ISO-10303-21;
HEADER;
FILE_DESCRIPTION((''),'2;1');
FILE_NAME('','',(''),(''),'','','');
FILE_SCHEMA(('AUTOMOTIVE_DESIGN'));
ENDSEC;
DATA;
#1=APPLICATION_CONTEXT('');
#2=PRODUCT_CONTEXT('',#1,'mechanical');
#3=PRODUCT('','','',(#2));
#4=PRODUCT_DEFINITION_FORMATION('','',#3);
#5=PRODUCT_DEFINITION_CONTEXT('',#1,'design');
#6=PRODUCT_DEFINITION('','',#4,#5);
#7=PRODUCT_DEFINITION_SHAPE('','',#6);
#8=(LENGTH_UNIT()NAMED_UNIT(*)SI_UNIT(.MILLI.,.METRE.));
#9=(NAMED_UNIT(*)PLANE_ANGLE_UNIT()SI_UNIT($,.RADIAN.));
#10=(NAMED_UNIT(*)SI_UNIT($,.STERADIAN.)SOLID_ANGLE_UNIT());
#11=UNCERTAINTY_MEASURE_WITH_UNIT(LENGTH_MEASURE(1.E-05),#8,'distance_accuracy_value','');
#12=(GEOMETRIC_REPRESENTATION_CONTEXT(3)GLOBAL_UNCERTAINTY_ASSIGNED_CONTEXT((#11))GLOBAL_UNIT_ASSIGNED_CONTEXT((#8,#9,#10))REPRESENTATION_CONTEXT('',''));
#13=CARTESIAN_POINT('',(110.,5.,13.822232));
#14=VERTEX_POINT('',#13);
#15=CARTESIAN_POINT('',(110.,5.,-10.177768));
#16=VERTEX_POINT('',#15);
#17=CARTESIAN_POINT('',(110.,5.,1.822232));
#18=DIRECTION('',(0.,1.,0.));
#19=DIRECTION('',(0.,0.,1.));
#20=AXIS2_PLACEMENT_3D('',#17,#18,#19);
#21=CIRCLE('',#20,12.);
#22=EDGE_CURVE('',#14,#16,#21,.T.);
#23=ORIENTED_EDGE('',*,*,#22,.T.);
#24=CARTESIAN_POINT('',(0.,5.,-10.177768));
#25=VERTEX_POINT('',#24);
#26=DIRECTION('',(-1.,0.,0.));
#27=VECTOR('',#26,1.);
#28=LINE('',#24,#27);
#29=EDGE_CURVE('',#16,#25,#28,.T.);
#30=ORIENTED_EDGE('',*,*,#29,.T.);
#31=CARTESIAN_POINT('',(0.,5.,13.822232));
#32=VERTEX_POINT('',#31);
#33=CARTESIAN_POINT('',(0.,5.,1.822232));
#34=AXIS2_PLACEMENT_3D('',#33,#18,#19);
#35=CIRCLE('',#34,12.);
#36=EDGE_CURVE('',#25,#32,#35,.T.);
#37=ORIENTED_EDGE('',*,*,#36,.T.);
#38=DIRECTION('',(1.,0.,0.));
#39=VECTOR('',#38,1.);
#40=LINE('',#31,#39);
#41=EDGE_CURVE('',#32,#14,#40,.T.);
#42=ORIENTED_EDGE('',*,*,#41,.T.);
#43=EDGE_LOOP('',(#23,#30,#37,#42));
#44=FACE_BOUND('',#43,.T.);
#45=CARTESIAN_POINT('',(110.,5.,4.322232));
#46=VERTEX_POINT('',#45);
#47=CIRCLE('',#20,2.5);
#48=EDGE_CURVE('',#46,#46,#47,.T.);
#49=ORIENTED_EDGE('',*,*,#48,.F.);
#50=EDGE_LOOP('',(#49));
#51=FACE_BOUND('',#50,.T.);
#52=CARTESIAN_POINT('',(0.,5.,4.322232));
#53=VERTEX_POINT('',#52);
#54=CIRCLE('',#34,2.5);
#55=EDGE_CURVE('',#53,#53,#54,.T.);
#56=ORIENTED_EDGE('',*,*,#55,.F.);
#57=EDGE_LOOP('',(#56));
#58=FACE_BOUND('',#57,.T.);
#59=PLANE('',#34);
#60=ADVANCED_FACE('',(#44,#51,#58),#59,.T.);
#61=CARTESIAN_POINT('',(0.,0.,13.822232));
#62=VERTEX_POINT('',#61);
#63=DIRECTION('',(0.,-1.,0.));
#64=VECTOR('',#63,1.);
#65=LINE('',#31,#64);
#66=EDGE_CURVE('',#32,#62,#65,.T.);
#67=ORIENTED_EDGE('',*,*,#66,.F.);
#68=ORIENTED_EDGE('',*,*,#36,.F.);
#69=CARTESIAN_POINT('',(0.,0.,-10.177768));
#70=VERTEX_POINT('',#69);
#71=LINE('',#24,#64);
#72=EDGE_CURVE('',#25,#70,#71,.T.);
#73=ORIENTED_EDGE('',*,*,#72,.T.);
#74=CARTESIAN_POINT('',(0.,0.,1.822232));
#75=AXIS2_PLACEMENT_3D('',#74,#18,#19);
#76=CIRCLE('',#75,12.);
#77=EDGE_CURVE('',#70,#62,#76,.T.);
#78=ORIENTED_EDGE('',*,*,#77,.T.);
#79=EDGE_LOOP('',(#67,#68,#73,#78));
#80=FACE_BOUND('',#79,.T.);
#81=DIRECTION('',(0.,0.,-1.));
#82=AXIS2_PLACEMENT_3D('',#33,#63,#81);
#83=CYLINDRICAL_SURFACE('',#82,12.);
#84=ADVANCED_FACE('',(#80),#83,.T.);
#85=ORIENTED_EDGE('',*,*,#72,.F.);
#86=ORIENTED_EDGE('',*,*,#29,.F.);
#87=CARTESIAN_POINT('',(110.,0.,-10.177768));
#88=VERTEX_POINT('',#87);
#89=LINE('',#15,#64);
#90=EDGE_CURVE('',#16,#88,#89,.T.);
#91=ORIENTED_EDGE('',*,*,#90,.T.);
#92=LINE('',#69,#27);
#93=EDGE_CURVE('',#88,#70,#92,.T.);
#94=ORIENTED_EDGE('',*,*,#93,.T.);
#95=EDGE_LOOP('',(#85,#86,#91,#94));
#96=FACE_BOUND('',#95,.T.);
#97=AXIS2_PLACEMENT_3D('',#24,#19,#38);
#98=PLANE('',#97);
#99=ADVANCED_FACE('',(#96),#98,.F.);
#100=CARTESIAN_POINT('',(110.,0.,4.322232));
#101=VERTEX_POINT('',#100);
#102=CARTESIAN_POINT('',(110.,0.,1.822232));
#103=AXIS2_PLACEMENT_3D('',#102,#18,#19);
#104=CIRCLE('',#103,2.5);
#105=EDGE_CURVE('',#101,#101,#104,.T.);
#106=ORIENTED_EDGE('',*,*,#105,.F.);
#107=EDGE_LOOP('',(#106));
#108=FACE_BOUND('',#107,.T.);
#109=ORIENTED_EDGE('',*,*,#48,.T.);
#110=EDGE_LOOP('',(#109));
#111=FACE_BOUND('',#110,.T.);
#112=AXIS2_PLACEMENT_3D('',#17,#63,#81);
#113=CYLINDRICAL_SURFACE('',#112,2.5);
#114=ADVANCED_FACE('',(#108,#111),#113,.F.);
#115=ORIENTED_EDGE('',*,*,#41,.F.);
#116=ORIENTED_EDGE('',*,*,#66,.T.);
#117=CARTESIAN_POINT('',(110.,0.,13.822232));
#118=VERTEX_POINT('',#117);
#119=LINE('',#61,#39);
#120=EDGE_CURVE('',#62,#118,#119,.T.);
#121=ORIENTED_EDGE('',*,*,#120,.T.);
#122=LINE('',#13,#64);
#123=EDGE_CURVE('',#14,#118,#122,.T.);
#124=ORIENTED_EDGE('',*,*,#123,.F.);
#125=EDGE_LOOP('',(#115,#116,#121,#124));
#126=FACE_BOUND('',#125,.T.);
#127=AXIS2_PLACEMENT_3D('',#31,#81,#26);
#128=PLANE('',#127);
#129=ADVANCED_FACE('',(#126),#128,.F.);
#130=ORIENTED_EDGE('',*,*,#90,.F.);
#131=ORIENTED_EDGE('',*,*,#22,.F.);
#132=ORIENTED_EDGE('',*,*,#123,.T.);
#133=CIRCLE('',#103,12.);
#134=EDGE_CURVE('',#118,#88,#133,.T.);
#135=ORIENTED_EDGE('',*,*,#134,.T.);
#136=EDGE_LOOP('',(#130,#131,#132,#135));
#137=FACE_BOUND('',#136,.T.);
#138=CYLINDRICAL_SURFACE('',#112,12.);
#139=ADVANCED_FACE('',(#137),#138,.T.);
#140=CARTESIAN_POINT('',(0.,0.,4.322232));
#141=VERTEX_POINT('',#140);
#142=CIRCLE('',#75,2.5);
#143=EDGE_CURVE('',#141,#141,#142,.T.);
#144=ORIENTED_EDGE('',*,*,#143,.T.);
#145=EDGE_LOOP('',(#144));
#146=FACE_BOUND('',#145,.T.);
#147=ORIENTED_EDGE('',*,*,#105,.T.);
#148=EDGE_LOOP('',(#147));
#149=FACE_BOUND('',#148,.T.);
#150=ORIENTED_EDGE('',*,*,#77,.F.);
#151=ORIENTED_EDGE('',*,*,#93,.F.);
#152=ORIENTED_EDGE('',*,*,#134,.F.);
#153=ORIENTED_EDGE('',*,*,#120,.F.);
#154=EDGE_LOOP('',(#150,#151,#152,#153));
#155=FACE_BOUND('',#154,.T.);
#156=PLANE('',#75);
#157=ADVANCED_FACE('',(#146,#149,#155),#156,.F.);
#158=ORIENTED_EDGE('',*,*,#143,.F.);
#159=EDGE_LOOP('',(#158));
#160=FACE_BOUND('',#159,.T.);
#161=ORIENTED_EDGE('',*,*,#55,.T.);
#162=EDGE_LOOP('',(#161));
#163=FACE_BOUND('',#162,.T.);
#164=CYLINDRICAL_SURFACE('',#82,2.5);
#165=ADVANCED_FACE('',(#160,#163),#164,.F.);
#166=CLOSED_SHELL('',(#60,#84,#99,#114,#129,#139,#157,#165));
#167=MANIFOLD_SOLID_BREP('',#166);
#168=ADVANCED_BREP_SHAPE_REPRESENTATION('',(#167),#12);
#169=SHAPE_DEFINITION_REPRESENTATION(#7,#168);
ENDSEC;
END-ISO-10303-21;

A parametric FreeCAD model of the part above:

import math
import FreeCAD as App
import Part
import Sketcher

doc = App.newDocument("Part")
body = doc.addObject("PartDesign::Body", "Body")

# Sketch on XZ plane
sketch1 = doc.addObject("Sketcher::SketchObject", "Sketch")
body.addObject(sketch1)
sketch1.AttachmentSupport = (doc.XZ_Plane, [""])
sketch1.MapMode = "FlatFace"
sketch1.addGeometry(Part.LineSegment(App.Vector(110, -10.2, 0), App.Vector(0, -10.2, 0)), False)
sketch1.addGeometry(Part.ArcOfCircle(Part.Circle(App.Vector(0, 1.8, 0), App.Vector(0, 0, 1), 12), math.radians(90), math.radians(270)), False)
sketch1.addGeometry(Part.LineSegment(App.Vector(0, 13.8, 0), App.Vector(110, 13.8, 0)), False)
sketch1.addGeometry(Part.ArcOfCircle(Part.Circle(App.Vector(110, 1.8, 0), App.Vector(0, 0, 1), 12), math.radians(-90), math.radians(90)), False)
sketch1.addGeometry(Part.Circle(App.Vector(110, 1.8, 0), App.Vector(0, 0, 1), 2.5), False)
sketch1.addGeometry(Part.Circle(App.Vector(0, 1.8, 0), App.Vector(0, 0, 1), 2.5), False)
sketch1.addConstraint(Sketcher.Constraint("Tangent", 0, 2, 1, 2))
sketch1.addConstraint(Sketcher.Constraint("Tangent", 1, 1, 2, 1))
sketch1.addConstraint(Sketcher.Constraint("Tangent", 2, 2, 3, 2))
sketch1.addConstraint(Sketcher.Constraint("Tangent", 3, 1, 0, 1))
sketch1.addConstraint(Sketcher.Constraint("Horizontal", 0))
sketch1.addConstraint(Sketcher.Constraint("Horizontal", 2))
sketch1.addConstraint(Sketcher.Constraint("Coincident", 4, 3, 3, 3))
sketch1.addConstraint(Sketcher.Constraint("Coincident", 5, 3, 1, 3))
sketch1.addConstraint(Sketcher.Constraint("Equal", 4, 5))
sketch1.addConstraint(Sketcher.Constraint("PointOnObject", 1, 3, -2))
sketch1.addConstraint(Sketcher.Constraint("Diameter", 4, 5.0))
sketch1.addConstraint(Sketcher.Constraint("Radius", 1, 12.0))
sketch1.addConstraint(Sketcher.Constraint("DistanceX", 0, 2, 0, 1, 110.0))
sketch1.addConstraint(Sketcher.Constraint("DistanceY", -1, 1, 1, 3, 1.822232))
pad1 = doc.addObject("PartDesign::Pad", "Pad")
body.addObject(pad1)
pad1.Profile = sketch1
pad1.Length = 5
pad1.Reversed = True

doc.recompute()
